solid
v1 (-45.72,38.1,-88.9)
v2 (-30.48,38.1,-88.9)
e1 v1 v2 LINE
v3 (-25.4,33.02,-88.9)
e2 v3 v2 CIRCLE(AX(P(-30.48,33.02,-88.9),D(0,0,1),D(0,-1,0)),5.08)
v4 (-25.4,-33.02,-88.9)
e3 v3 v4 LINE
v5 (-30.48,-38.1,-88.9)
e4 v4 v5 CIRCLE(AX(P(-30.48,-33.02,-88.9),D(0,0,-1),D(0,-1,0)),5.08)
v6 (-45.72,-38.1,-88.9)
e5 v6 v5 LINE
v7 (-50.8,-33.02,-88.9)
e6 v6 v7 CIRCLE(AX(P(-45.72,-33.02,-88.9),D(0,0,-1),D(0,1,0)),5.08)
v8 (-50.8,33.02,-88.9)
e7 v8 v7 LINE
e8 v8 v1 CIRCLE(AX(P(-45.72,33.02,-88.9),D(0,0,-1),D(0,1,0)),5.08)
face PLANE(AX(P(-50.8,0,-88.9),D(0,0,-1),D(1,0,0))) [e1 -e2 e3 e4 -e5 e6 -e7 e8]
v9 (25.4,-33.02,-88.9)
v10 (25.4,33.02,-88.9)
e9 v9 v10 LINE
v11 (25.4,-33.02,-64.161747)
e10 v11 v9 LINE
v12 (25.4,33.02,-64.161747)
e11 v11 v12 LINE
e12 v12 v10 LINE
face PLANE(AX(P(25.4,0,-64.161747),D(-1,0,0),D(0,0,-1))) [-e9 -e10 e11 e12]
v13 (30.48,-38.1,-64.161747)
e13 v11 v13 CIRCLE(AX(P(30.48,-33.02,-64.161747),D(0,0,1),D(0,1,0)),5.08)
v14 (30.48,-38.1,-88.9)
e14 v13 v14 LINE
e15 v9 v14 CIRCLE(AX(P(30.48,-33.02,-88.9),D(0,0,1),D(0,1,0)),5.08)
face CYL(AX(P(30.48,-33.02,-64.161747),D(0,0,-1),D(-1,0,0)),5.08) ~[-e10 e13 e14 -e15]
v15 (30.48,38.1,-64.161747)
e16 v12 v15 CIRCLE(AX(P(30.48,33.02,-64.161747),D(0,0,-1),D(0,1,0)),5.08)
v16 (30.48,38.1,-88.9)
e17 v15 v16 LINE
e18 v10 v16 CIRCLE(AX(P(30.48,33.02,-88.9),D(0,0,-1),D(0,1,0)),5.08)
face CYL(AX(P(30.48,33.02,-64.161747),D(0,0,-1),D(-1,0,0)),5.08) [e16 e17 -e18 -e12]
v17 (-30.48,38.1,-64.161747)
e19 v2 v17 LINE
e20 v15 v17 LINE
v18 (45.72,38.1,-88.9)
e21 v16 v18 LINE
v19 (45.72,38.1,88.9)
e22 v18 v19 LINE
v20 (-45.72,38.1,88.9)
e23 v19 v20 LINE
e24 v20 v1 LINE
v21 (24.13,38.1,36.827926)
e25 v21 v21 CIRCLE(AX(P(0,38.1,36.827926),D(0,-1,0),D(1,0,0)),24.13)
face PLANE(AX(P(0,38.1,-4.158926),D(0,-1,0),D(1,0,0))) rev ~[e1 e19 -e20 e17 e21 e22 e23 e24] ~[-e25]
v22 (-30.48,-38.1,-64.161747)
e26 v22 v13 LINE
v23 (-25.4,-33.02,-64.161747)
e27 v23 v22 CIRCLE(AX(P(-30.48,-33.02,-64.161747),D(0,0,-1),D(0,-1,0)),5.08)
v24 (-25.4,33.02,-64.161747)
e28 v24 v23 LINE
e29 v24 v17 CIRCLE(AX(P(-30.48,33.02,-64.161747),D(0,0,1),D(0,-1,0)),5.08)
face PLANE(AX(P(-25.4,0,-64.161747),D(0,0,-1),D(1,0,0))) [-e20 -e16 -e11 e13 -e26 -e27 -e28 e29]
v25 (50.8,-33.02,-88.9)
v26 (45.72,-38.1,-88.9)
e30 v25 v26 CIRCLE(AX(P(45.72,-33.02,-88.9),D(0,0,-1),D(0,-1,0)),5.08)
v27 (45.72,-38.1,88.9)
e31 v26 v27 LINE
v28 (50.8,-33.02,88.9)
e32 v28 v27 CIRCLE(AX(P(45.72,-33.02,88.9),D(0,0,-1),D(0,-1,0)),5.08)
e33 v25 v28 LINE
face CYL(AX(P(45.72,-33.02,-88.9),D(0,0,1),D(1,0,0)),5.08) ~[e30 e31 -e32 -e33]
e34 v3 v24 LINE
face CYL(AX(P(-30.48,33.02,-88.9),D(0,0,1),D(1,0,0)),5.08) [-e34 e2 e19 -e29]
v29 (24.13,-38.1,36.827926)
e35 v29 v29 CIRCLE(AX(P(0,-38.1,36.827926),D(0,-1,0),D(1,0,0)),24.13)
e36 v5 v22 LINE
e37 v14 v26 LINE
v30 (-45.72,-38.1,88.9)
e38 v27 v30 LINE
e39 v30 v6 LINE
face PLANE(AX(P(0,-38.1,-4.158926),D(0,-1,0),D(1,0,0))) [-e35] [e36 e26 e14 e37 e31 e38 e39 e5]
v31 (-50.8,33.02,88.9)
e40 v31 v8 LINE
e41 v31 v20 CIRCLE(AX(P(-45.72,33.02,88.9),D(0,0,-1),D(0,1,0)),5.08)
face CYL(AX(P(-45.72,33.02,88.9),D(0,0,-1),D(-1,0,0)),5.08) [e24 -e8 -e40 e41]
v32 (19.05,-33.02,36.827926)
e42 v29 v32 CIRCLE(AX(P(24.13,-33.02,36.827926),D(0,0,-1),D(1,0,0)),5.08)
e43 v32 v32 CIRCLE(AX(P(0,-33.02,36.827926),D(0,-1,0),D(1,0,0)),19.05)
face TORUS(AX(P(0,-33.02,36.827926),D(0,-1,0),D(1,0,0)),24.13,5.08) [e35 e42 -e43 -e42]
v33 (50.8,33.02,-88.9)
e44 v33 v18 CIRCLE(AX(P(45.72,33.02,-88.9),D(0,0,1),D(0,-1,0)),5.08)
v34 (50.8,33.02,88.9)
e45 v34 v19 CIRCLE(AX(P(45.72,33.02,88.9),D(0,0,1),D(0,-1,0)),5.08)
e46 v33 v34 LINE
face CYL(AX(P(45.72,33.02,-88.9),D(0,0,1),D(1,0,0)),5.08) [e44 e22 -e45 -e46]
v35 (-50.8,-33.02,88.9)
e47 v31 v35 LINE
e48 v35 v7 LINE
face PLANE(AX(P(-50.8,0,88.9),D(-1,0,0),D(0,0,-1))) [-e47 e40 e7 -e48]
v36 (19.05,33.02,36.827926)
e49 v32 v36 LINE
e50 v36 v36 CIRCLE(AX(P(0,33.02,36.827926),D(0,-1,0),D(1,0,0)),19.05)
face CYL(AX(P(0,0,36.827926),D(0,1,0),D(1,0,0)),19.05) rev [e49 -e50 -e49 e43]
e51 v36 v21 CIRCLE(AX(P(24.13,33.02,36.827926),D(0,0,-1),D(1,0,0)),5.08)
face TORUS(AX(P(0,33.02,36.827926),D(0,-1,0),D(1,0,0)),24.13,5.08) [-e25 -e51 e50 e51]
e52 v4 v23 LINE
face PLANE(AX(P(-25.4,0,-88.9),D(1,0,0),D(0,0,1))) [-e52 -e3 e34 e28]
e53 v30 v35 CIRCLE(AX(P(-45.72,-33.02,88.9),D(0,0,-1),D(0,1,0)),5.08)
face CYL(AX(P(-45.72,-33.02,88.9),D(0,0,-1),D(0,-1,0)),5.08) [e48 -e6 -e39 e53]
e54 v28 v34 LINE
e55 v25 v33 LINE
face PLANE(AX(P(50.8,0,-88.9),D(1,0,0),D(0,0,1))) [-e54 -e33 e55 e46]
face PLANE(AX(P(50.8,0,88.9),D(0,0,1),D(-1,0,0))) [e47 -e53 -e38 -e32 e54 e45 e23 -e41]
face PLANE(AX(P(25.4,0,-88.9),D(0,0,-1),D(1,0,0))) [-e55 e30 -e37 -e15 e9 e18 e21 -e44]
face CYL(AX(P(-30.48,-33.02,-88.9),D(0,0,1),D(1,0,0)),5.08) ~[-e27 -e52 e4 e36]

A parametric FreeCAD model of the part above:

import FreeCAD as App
import Part
import Sketcher
from FreeCAD import Vector
Q = App.Units.Quantity


def edges_at(feature, points):
    """Names of the edges that pass closest to the given points."""
    edges = feature.Shape.Edges
    near = lambda p: min(range(len(edges)), key=lambda i: edges[i].distToShape(Part.Vertex(*p))[0])
    return sorted({f"Edge{near(p) + 1}" for p in points})


def add_polygon(sketch, points):
    """Adds a closed chain of lines whose ends are joined by coincident constraints."""
    first, n = sketch.GeometryCount, len(points)
    for a, b in zip(points, points[1:] + points[:1]):
        sketch.addGeometry(Part.LineSegment(App.Vector(*a, 0), App.Vector(*b, 0)), False)
    for i in range(n):
        sketch.addConstraint(Sketcher.Constraint("Coincident", first + i, 2, first + (i + 1) % n, 1))

doc = App.newDocument("Part")
params = doc.addObject("Spreadsheet::Sheet", "Params")
for row, (alias, value) in enumerate([
    ("sketch1_diameter", "1.5 in"),
    ("sketch1_width", "4 in"),
    ("sketch1_width2", "1 in"),
    ("sketch1_height", "7 in"),
    ("pad1_length", "3 in"),
    ("fillet_radius", "0.2 in"),
], start=1):
    params.set(f"A{row}", alias)
    params.set(f"B{row}", "=" + value)
    params.setAlias(f"B{row}", alias)

body = doc.addObject("PartDesign::Body", "Body")

# Sketch on XZ plane
sketch1 = body.newObject("Sketcher::SketchObject", "Sketch")
sketch1.AttachmentSupport = (doc.getObject("XZ_Plane"), [""])
sketch1.MapMode = "FlatFace"
add_polygon(sketch1, [(51, 89), (-51, 89), (-51, -89), (-25, -89), (-25, -64), (25, -64), (25, -89), (51, -89)])  # lines 0-7
sketch1.addGeometry(Part.Circle(Vector(0, 37, 0), Vector(0, 0, 1), 19), False)  # 8
sketch1.addConstraint(Sketcher.Constraint("Horizontal", 0))
sketch1.addConstraint(Sketcher.Constraint("Vertical", 1))
sketch1.addConstraint(Sketcher.Constraint("Horizontal", 2))
sketch1.addConstraint(Sketcher.Constraint("Vertical", 3))
sketch1.addConstraint(Sketcher.Constraint("Horizontal", 4))
sketch1.addConstraint(Sketcher.Constraint("Vertical", 5))
sketch1.addConstraint(Sketcher.Constraint("Horizontal", 6))
sketch1.addConstraint(Sketcher.Constraint("Vertical", 7))
sketch1.addConstraint(Sketcher.Constraint("Symmetric", 0, 2, 6, 2, -1, 1))
sketch1.addConstraint(Sketcher.Constraint("Symmetric", 2, 2, 5, 2, -2))
sketch1.addConstraint(Sketcher.Constraint("PointOnObject", 8, 3, -2))
sketch1.addConstraint(Sketcher.Constraint("Diameter", 8, Q("1.5 in")))
sketch1.addConstraint(Sketcher.Constraint("DistanceX", 0, 2, 0, 1, Q("4 in")))
sketch1.addConstraint(Sketcher.Constraint("DistanceX", 2, 1, 2, 2, Q("1 in")))
sketch1.addConstraint(Sketcher.Constraint("DistanceY", 1, 2, 1, 1, Q("7 in")))
sketch1.addConstraint(Sketcher.Constraint("DistanceY", 3, 1, 3, 2, Q("24.738253 mm")))
sketch1.addConstraint(Sketcher.Constraint("DistanceY", -1, 1, 8, 3, Q("36.827926 mm")))
sketch1.setExpression("Constraints[19]", "Params.sketch1_diameter")
sketch1.setExpression("Constraints[20]", "Params.sketch1_width")
sketch1.setExpression("Constraints[21]", "Params.sketch1_width2")
sketch1.setExpression("Constraints[22]", "Params.sketch1_height")
pad1 = body.newObject("PartDesign::Pad", "Pad")
pad1.Profile = sketch1
pad1.setExpression("Length", "Params.pad1_length")
pad1.Midplane = True
doc.recompute()

fillet = body.newObject("PartDesign::Fillet", "Fillet")
fillet.Base = (pad1, edges_at(pad1, [
    (-50.8, 38.1, 0),
    (50.8, 38.1, 0),
    (-50.8, -38.1, 0),
    (50.8, -38.1, 0),
    (-25.4, -38.1, -76.531),
    (25.4, -38.1, -76.531),
    (-25.4, 38.1, -76.531),
    (25.4, 38.1, -76.531),
    (-19.05, -38.1, 36.828),
    (-19.05, 38.1, 36.828),
]))
fillet.setExpression("Radius", "Params.fillet_radius")

doc.recompute()
